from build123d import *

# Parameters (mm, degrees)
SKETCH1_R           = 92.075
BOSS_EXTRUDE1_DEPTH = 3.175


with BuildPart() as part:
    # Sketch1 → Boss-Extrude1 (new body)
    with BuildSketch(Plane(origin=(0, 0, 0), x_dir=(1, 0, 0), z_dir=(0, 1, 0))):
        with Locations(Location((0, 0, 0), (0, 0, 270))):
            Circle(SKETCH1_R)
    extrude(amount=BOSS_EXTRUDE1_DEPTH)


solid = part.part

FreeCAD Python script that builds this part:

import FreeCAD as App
import Part
import Sketcher
Q = App.Units.Quantity

doc = App.newDocument("Part")
params = doc.addObject("Spreadsheet::Sheet", "Params")
for row, (alias, value) in enumerate([
    ("sketch1_diameter", "7.25 in"),
    ("pad1_length", "0.125 in"),
], start=1):
    params.set(f"A{row}", alias)
    params.set(f"B{row}", "=" + value)
    params.setAlias(f"B{row}", alias)

body = doc.addObject("PartDesign::Body", "Body")

sketch1 = body.newObject("Sketcher::SketchObject", "Sketch")
sketch1.AttachmentSupport = (doc.getObject("XZ_Plane"), [""])
sketch1.MapMode = "FlatFace"
sketch1.addGeometry(Part.Circle(App.Vector(0, 0, 0), App.Vector(0, 0, 1), 92), False)
sketch1.addConstraint([
    Sketcher.Constraint("Coincident", 0, 3, -1, 1),
    Sketcher.Constraint("Diameter", 0, Q("7.25 in")),
])
sketch1.setExpression("Constraints[1]", "Params.sketch1_diameter")
pad1 = body.newObject("PartDesign::Pad", "Pad")
pad1.Profile = sketch1
pad1.setExpression("Length", "Params.pad1_length")
pad1.Reversed = True

doc.recompute()
